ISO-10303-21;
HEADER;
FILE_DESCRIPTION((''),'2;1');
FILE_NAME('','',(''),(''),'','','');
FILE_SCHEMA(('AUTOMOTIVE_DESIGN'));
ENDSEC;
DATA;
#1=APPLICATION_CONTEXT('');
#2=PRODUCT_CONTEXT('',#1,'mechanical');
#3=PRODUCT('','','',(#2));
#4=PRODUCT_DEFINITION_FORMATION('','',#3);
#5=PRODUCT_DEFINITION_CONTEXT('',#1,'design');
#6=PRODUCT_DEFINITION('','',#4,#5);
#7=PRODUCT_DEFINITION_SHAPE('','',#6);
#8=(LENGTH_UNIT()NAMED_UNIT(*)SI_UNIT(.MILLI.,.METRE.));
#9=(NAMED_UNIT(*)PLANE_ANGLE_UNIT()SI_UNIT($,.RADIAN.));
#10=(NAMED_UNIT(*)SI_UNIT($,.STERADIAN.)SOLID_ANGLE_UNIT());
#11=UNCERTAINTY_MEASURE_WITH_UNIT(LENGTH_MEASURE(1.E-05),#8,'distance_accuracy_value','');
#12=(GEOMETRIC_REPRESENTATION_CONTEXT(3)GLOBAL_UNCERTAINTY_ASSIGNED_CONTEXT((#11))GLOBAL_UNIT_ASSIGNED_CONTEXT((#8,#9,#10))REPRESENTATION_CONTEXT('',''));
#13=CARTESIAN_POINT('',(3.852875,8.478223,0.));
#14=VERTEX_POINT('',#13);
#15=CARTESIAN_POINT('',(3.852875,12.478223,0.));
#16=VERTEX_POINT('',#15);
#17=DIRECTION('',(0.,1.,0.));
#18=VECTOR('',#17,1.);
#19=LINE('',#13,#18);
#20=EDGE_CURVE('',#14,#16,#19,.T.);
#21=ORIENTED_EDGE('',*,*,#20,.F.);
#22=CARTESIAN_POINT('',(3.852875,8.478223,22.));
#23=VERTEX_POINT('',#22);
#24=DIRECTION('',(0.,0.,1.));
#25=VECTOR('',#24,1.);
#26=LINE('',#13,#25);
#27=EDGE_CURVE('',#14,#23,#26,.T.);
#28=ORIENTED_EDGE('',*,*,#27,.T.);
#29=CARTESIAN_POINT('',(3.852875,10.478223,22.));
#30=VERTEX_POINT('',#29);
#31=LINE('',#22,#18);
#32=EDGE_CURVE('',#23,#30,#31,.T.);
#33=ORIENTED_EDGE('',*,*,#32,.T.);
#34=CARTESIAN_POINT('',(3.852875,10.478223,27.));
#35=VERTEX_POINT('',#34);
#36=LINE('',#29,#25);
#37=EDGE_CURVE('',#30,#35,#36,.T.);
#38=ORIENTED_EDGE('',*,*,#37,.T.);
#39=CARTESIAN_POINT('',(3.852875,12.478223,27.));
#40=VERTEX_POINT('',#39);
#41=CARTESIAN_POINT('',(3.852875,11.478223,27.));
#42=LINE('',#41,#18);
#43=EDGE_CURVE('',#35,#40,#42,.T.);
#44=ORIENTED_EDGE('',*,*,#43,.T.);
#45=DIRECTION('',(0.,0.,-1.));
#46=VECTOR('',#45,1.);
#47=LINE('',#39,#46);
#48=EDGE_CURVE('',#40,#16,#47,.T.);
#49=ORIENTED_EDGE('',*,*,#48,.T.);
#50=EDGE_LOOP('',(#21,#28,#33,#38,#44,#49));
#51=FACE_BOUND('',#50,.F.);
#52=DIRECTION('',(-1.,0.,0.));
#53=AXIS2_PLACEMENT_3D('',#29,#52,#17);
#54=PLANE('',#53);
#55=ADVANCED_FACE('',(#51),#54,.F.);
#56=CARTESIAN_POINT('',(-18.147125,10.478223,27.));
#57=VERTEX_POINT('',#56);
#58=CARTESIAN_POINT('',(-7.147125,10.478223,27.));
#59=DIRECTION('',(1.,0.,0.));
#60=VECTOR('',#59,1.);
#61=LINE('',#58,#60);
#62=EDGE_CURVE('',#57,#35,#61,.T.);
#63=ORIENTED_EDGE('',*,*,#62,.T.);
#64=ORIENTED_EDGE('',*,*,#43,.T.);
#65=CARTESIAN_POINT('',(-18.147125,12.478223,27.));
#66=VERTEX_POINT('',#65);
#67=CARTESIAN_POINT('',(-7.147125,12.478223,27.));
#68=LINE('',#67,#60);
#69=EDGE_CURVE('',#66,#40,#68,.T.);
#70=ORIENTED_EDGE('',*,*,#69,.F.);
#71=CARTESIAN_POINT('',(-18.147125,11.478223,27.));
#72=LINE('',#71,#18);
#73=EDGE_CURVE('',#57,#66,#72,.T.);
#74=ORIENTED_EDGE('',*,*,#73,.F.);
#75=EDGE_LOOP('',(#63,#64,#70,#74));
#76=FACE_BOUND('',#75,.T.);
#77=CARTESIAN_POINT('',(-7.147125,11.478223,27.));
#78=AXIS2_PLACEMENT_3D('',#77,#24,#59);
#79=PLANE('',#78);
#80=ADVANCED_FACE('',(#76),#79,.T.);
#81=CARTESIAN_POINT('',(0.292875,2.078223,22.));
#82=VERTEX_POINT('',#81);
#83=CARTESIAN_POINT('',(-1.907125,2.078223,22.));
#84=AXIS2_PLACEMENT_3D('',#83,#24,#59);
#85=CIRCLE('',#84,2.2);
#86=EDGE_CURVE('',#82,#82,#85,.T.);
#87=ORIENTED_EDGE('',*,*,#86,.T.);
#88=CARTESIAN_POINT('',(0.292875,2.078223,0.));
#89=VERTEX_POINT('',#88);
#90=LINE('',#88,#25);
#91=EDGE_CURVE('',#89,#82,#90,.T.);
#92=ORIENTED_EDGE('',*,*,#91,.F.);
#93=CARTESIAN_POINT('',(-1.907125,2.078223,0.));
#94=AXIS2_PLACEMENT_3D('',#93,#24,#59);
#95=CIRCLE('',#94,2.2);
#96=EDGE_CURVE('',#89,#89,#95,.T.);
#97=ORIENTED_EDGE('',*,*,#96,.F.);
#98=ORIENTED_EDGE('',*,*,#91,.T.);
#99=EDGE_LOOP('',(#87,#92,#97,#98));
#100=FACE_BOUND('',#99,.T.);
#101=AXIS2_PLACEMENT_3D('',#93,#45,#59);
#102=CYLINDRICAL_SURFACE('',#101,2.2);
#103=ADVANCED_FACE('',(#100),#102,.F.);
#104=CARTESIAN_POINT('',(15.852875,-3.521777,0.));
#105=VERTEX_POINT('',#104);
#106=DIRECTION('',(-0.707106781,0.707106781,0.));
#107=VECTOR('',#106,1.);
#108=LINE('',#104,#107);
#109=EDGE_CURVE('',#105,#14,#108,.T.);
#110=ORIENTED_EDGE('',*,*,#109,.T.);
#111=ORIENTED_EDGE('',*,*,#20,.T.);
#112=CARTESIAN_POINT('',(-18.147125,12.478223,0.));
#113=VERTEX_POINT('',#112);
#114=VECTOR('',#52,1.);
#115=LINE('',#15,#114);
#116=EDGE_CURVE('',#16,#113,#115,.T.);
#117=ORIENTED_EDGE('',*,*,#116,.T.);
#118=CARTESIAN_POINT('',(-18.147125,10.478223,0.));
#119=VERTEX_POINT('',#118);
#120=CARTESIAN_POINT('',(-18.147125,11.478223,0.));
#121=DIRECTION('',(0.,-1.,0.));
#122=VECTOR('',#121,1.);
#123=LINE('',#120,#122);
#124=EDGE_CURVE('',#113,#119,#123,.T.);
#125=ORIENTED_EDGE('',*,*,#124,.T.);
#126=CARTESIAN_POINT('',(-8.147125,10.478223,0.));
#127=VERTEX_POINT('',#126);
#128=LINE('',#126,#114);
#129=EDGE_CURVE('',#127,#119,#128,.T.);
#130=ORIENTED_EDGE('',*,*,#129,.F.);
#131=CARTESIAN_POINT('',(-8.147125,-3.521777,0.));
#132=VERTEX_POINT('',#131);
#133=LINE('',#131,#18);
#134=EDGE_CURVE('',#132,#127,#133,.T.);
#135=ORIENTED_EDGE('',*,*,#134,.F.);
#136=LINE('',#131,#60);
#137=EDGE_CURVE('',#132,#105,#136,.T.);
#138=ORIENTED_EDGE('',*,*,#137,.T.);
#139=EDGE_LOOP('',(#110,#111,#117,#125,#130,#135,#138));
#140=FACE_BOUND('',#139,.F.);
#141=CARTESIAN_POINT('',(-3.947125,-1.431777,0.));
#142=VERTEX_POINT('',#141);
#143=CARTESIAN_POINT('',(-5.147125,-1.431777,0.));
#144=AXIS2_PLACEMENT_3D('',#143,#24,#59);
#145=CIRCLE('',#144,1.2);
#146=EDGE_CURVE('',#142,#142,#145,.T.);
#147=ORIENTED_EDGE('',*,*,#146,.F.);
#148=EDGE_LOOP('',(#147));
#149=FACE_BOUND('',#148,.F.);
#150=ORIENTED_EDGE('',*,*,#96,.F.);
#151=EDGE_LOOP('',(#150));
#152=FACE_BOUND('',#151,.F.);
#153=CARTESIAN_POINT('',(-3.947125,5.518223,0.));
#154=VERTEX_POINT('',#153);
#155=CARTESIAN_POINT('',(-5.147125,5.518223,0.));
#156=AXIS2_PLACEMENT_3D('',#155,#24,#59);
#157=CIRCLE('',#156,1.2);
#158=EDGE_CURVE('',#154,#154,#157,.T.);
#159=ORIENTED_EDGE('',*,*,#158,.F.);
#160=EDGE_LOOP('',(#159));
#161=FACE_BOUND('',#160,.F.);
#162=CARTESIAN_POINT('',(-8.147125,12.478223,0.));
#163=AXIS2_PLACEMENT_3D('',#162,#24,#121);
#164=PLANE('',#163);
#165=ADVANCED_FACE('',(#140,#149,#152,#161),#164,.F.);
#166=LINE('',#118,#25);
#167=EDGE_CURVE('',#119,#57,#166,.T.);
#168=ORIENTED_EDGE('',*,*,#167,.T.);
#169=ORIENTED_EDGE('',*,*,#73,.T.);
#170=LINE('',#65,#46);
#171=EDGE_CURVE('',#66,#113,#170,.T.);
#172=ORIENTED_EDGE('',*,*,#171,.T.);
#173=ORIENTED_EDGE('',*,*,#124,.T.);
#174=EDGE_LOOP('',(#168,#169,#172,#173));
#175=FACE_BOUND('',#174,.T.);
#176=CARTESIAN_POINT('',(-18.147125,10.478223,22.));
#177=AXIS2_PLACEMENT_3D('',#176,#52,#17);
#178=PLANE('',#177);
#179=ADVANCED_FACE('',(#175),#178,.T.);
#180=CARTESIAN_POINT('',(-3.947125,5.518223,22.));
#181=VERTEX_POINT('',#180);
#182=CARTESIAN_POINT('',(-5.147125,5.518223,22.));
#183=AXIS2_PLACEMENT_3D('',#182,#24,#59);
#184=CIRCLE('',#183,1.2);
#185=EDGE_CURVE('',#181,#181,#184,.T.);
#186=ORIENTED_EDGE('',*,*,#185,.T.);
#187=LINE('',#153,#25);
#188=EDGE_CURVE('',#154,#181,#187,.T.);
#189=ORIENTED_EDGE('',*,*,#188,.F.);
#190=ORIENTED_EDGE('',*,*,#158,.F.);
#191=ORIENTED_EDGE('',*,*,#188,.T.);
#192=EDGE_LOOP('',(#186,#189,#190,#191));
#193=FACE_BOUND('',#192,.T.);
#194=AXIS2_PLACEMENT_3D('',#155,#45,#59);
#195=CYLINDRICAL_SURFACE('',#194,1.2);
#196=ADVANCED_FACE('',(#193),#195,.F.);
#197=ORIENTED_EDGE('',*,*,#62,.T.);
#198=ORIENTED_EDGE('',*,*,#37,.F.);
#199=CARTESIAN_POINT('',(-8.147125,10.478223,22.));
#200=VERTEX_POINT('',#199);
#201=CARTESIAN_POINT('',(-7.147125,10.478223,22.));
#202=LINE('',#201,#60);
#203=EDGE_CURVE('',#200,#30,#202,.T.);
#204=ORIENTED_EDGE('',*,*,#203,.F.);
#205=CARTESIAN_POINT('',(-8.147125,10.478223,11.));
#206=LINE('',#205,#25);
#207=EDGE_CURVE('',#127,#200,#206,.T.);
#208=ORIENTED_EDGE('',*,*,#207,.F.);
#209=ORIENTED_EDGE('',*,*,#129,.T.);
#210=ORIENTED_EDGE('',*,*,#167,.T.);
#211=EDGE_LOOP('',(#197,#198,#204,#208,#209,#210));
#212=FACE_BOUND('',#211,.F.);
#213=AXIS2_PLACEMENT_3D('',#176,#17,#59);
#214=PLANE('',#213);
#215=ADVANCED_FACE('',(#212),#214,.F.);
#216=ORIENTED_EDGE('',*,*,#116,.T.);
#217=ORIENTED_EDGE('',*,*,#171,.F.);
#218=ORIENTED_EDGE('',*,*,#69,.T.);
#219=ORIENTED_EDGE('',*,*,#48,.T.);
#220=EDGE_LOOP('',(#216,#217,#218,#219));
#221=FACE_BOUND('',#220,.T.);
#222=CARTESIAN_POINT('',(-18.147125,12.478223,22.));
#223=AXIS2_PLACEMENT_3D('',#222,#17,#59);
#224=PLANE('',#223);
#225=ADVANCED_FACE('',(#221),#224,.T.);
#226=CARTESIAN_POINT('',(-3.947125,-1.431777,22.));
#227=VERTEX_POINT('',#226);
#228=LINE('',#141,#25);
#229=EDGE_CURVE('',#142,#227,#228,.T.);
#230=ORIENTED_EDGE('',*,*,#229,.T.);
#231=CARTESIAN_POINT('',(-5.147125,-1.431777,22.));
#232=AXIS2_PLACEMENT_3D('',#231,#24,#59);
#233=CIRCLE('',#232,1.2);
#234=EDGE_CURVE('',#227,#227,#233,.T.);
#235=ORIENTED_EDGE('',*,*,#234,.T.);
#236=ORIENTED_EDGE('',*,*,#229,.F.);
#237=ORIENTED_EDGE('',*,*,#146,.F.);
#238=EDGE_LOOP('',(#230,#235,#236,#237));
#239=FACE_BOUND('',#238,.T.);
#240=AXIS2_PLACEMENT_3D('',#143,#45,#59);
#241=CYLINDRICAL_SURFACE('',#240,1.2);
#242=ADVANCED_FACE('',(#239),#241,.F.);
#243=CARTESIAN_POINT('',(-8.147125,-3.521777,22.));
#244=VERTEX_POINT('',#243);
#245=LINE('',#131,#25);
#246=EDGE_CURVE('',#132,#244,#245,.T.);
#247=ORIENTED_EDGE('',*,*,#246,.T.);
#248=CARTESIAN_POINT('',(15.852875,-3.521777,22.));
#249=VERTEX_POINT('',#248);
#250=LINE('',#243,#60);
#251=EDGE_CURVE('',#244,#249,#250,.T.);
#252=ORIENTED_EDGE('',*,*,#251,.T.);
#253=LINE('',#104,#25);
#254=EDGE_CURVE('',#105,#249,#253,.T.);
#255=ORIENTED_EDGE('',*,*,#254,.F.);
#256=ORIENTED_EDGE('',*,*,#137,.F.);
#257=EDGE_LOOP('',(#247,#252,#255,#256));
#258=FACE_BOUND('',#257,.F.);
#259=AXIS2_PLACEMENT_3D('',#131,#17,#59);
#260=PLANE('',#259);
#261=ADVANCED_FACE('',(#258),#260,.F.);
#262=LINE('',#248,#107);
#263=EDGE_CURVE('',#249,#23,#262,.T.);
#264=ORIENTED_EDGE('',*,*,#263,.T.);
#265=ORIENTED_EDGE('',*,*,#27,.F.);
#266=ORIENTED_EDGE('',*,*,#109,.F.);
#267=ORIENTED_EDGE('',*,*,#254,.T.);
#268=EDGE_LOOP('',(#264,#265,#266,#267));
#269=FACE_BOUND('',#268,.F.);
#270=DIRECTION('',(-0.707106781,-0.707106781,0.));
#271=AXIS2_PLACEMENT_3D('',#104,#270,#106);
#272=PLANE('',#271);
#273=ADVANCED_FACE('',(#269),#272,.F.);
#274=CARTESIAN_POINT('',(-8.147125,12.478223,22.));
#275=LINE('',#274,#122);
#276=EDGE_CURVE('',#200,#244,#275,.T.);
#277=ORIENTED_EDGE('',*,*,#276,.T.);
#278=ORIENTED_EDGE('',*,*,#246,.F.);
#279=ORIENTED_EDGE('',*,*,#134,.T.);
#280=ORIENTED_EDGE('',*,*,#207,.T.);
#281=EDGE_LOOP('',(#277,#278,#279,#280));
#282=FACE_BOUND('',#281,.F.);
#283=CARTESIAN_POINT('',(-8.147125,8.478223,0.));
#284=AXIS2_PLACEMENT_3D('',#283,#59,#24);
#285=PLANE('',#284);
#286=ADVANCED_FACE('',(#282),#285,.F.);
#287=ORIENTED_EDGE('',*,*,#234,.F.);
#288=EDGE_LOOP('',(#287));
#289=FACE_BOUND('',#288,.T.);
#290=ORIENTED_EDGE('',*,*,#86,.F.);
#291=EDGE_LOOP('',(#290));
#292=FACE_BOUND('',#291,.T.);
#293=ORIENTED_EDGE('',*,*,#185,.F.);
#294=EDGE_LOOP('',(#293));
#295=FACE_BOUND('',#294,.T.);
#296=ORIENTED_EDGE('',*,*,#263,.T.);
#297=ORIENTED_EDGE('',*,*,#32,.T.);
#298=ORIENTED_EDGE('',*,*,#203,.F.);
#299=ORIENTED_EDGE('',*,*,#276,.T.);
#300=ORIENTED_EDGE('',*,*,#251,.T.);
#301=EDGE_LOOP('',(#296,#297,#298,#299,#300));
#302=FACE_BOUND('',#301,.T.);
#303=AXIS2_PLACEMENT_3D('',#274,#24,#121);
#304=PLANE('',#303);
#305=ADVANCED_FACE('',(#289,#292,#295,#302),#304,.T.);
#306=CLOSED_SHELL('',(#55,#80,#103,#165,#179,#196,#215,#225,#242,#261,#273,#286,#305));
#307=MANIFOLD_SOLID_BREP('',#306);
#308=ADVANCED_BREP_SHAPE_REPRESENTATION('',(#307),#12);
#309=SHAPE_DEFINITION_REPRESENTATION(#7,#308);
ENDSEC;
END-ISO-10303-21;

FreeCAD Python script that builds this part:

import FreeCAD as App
import Part
import Sketcher

doc = App.newDocument("Part")
body = doc.addObject("PartDesign::Body", "Body")

sketch1 = doc.addObject("Sketcher::SketchObject", "Sketch")
body.addObject(sketch1)
sketch1.AttachmentSupport = (doc.XY_Plane, [""])
sketch1.MapMode = "FlatFace"
sketch1.addGeometry([
    Part.LineSegment(App.Vector(3.9, 8.5, 0), App.Vector(-8.1, 8.5, 0)),
    Part.LineSegment(App.Vector(-8.1, 8.5, 0), App.Vector(-8.1, -3.5, 0)),
    Part.LineSegment(App.Vector(-8.1, -3.5, 0), App.Vector(15.9, -3.5, 0)),
    Part.LineSegment(App.Vector(15.9, -3.5, 0), App.Vector(3.9, 8.5, 0)),
    Part.Circle(App.Vector(-5.1, -1.4, 0), App.Vector(0, 0, 1), 1.2),
    Part.Circle(App.Vector(-5.1, 5.5, 0), App.Vector(0, 0, 1), 1.2),
    Part.Circle(App.Vector(-1.9, 2.1, 0), App.Vector(0, 0, 1), 2.2),
], False)
sketch1.addConstraint([
    Sketcher.Constraint("Coincident", 0, 2, 1, 1),
    Sketcher.Constraint("Coincident", 1, 2, 2, 1),
    Sketcher.Constraint("Coincident", 2, 2, 3, 1),
    Sketcher.Constraint("Coincident", 3, 2, 0, 1),
    Sketcher.Constraint("Horizontal", 0),
    Sketcher.Constraint("Vertical", 1),
    Sketcher.Constraint("Horizontal", 2),
    Sketcher.Constraint("Equal", 4, 5),
    Sketcher.Constraint("Vertical", 4, 3, 5, 3),
    Sketcher.Constraint("Equal", 0, 1),
    Sketcher.Constraint("Diameter", 4, 2.4),
    Sketcher.Constraint("Diameter", 6, 4.4),
    Sketcher.Constraint("DistanceX", 0, 2, 0, 1, 12.0),
    Sketcher.Constraint("DistanceX", 2, 1, 2, 2, 24.0),
    Sketcher.Constraint("DistanceX", 0, 2, 5, 3, 3.0),
    Sketcher.Constraint("DistanceY", 6, 3, 0, 2, 6.4),
    Sketcher.Constraint("DistanceY", 4, 3, 5, 3, 6.95),
    Sketcher.Constraint("DistanceX", 5, 3, 6, 3, 3.24),
    Sketcher.Constraint("DistanceY", 6, 3, 5, 3, 3.44),
    Sketcher.Constraint("DistanceX", 4, 3, -1, 1, 5.147125),
    Sketcher.Constraint("DistanceY", 4, 3, -1, 1, 1.431777),
])
pad1 = doc.addObject("PartDesign::Pad", "Pad")
body.addObject(pad1)
pad1.Profile = sketch1
pad1.Length = 22

sketch2 = doc.addObject("Sketcher::SketchObject", "Sketch001")
body.addObject(sketch2)
sketch2.AttachmentSupport = (doc.XZ_Plane, [""])
sketch2.MapMode = "FlatFace"
sketch2.AttachmentOffset = App.Placement(App.Vector(0, 0, -8.478223), App.Rotation())
sketch2.addGeometry([
    Part.LineSegment(App.Vector(4, 22, 0), App.Vector(4, 0, 0)),
    Part.LineSegment(App.Vector(4, 0, 0), App.Vector(-8, 0, 0)),
    Part.LineSegment(App.Vector(-8, 0, 0), App.Vector(-8, 22, 0)),
    Part.LineSegment(App.Vector(-8, 22, 0), App.Vector(4, 22, 0)),
], False)
sketch2.addConstraint([
    Sketcher.Constraint("Coincident", 0, 2, 1, 1),
    Sketcher.Constraint("Coincident", 1, 2, 2, 1),
    Sketcher.Constraint("Coincident", 2, 2, 3, 1),
    Sketcher.Constraint("Coincident", 3, 2, 0, 1),
    Sketcher.Constraint("Vertical", 0),
    Sketcher.Constraint("Horizontal", 1),
    Sketcher.Constraint("Vertical", 2),
    Sketcher.Constraint("Horizontal", 3),
    Sketcher.Constraint("PointOnObject", 0, 2, -1),
    Sketcher.Constraint("DistanceX", 1, 2, 1, 1, 12.0),
    Sketcher.Constraint("DistanceY", 0, 2, 0, 1, 22.0),
    Sketcher.Constraint("DistanceX", -1, 1, 0, 2, 3.852875),
])
pad2 = doc.addObject("PartDesign::Pad", "Pad001")
body.addObject(pad2)
pad2.Profile = sketch2
pad2.Length = 4
pad2.Reversed = True

sketch3 = doc.addObject("Sketcher::SketchObject", "Sketch002")
body.addObject(sketch3)
sketch3.AttachmentSupport = (doc.YZ_Plane, [""])
sketch3.MapMode = "FlatFace"
sketch3.AttachmentOffset = App.Placement(App.Vector(0, 0, -8.147125), App.Rotation())
sketch3.addGeometry([
    Part.LineSegment(App.Vector(12.5, 22, 0), App.Vector(12.5, 0, 0)),
    Part.LineSegment(App.Vector(12.5, 0, 0), App.Vector(10.5, 0, 0)),
    Part.LineSegment(App.Vector(10.5, 0, 0), App.Vector(10.5, 22, 0)),
    Part.LineSegment(App.Vector(10.5, 22, 0), App.Vector(12.5, 22, 0)),
], False)
sketch3.addConstraint([
    Sketcher.Constraint("Coincident", 0, 2, 1, 1),
    Sketcher.Constraint("Coincident", 1, 2, 2, 1),
    Sketcher.Constraint("Coincident", 2, 2, 3, 1),
    Sketcher.Constraint("Coincident", 3, 2, 0, 1),
    Sketcher.Constraint("Vertical", 0),
    Sketcher.Constraint("Horizontal", 1),
    Sketcher.Constraint("Vertical", 2),
    Sketcher.Constraint("Horizontal", 3),
    Sketcher.Constraint("PointOnObject", 0, 2, -1),
    Sketcher.Constraint("DistanceX", 1, 2, 1, 1, 2.0),
    Sketcher.Constraint("DistanceY", 0, 2, 0, 1, 22.0),
    Sketcher.Constraint("DistanceX", -1, 1, 0, 2, 12.478223),
])
pad3 = doc.addObject("PartDesign::Pad", "Pad002")
body.addObject(pad3)
pad3.Profile = sketch3
pad3.Length = 10
pad3.Reversed = True

sketch4 = doc.addObject("Sketcher::SketchObject", "Sketch003")
body.addObject(sketch4)
sketch4.AttachmentSupport = (doc.XY_Plane, [""])
sketch4.MapMode = "FlatFace"
sketch4.AttachmentOffset = App.Placement(App.Vector(0, 0, 22), App.Rotation())
sketch4.addGeometry([
    Part.LineSegment(App.Vector(-18.1, 12.5, 0), App.Vector(-18.1, 10.5, 0)),
    Part.LineSegment(App.Vector(-18.1, 10.5, 0), App.Vector(3.9, 10.5, 0)),
    Part.LineSegment(App.Vector(3.9, 10.5, 0), App.Vector(3.9, 12.5, 0)),
    Part.LineSegment(App.Vector(3.9, 12.5, 0), App.Vector(-18.1, 12.5, 0)),
], False)
sketch4.addConstraint([
    Sketcher.Constraint("Coincident", 0, 2, 1, 1),
    Sketcher.Constraint("Coincident", 1, 2, 2, 1),
    Sketcher.Constraint("Coincident", 2, 2, 3, 1),
    Sketcher.Constraint("Coincident", 3, 2, 0, 1),
    Sketcher.Constraint("Vertical", 0),
    Sketcher.Constraint("Horizontal", 1),
    Sketcher.Constraint("Vertical", 2),
    Sketcher.Constraint("Horizontal", 3),
    Sketcher.Constraint("DistanceX", 1, 1, 1, 2, 22.0),
    Sketcher.Constraint("DistanceY", 0, 2, 0, 1, 2.0),
    Sketcher.Constraint("DistanceX", 0, 2, -1, 1, 18.147125),
    Sketcher.Constraint("DistanceY", -1, 1, 0, 2, 10.478223),
])
pad4 = doc.addObject("PartDesign::Pad", "Pad003")
body.addObject(pad4)
pad4.Profile = sketch4
pad4.Length = 5

doc.recompute()
